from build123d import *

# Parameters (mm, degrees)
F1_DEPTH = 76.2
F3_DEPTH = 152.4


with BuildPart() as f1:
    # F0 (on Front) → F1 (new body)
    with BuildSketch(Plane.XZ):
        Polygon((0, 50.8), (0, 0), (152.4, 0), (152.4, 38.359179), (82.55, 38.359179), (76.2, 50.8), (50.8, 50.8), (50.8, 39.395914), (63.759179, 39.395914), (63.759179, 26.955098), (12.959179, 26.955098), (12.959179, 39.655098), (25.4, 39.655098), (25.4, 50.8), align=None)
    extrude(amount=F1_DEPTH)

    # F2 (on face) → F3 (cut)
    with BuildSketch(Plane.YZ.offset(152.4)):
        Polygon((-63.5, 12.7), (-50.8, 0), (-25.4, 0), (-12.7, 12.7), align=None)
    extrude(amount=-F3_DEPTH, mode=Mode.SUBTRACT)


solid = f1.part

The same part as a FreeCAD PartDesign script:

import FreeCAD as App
import Part
import Sketcher
Q = App.Units.Quantity

doc = App.newDocument("Part")
body = doc.addObject("PartDesign::Body", "Body")

# Sketch on XZ plane
sketch1 = body.newObject("Sketcher::SketchObject", "Sketch")
sketch1.AttachmentSupport = (doc.getObject("XZ_Plane"), [""])
sketch1.MapMode = "FlatFace"
sketch1.addGeometry([
    Part.LineSegment(App.Vector(0, 51, 0), App.Vector(0, 0, 0)),  # 0
    Part.LineSegment(App.Vector(0, 0, 0), App.Vector(152, 0, 0)),  # 1
    Part.LineSegment(App.Vector(152, 0, 0), App.Vector(152, 38, 0)),  # 2
    Part.LineSegment(App.Vector(152, 38, 0), App.Vector(83, 38, 0)),  # 3
    Part.LineSegment(App.Vector(83, 38, 0), App.Vector(76, 51, 0)),  # 4
    Part.LineSegment(App.Vector(76, 51, 0), App.Vector(51, 51, 0)),  # 5
    Part.LineSegment(App.Vector(51, 51, 0), App.Vector(51, 39, 0)),  # 6
    Part.LineSegment(App.Vector(51, 39, 0), App.Vector(64, 39, 0)),  # 7
    Part.LineSegment(App.Vector(64, 39, 0), App.Vector(64, 27, 0)),  # 8
    Part.LineSegment(App.Vector(64, 27, 0), App.Vector(13, 27, 0)),  # 9
    Part.LineSegment(App.Vector(13, 27, 0), App.Vector(13, 40, 0)),  # 10
    Part.LineSegment(App.Vector(13, 40, 0), App.Vector(25, 40, 0)),  # 11
    Part.LineSegment(App.Vector(25, 40, 0), App.Vector(25, 51, 0)),  # 12
    Part.LineSegment(App.Vector(25, 51, 0), App.Vector(0, 51, 0)),  # 13
], False)
sketch1.addConstraint([
    Sketcher.Constraint("Coincident", 0, 2, 1, 1),
    Sketcher.Constraint("Coincident", 1, 2, 2, 1),
    Sketcher.Constraint("Coincident", 2, 2, 3, 1),
    Sketcher.Constraint("Coincident", 3, 2, 4, 1),
    Sketcher.Constraint("Coincident", 4, 2, 5, 1),
    Sketcher.Constraint("Coincident", 5, 2, 6, 1),
    Sketcher.Constraint("Coincident", 6, 2, 7, 1),
    Sketcher.Constraint("Coincident", 7, 2, 8, 1),
    Sketcher.Constraint("Coincident", 8, 2, 9, 1),
    Sketcher.Constraint("Coincident", 9, 2, 10, 1),
    Sketcher.Constraint("Coincident", 10, 2, 11, 1),
    Sketcher.Constraint("Coincident", 11, 2, 12, 1),
    Sketcher.Constraint("Coincident", 12, 2, 13, 1),
    Sketcher.Constraint("Coincident", 13, 2, 0, 1),
    Sketcher.Constraint("Vertical", 0),
    Sketcher.Constraint("Horizontal", 1),
    Sketcher.Constraint("Vertical", 2),
    Sketcher.Constraint("Horizontal", 3),
    Sketcher.Constraint("Horizontal", 5),
    Sketcher.Constraint("Vertical", 6),
    Sketcher.Constraint("Horizontal", 7),
    Sketcher.Constraint("Vertical", 8),
    Sketcher.Constraint("Horizontal", 9),
    Sketcher.Constraint("Vertical", 10),
    Sketcher.Constraint("Horizontal", 11),
    Sketcher.Constraint("Vertical", 12),
    Sketcher.Constraint("Horizontal", 13),
    Sketcher.Constraint("Coincident", 0, 2, -1, 1),
    Sketcher.Constraint("Horizontal", 5, 2, 12, 2),
    Sketcher.Constraint("Equal", 5, 13),
    Sketcher.Constraint("Equal", 9, 0),
    Sketcher.Constraint("DistanceX", 1, 1, 1, 2, Q("6 in")),
    Sketcher.Constraint("DistanceX", 5, 2, 5, 1, Q("1 in")),
    Sketcher.Constraint("DistanceX", 9, 2, 9, 1, Q("2 in")),
    Sketcher.Constraint("DistanceY", 10, 1, 10, 2, Q("0.5 in")),
    Sketcher.Constraint("DistanceX", -1, 1, 4, 2, Q("3 in")),
    Sketcher.Constraint("DistanceX", 3, 2, 3, 1, Q("2.75 in")),
    Sketcher.Constraint("DistanceY", 12, 1, 12, 2, 11.144902),
    Sketcher.Constraint("DistanceX", 7, 1, 7, 2, 12.959179),
    Sketcher.Constraint("DistanceY", 2, 1, 2, 2, 38.359179),
    Sketcher.Constraint("DistanceY", 6, 2, 6, 1, 11.404086),
])
pad1 = body.newObject("PartDesign::Pad", "Pad")
pad1.Profile = sketch1
pad1.Length = Q("3 in")

# Sketch on YZ plane
sketch2 = body.newObject("Sketcher::SketchObject", "Sketch001")
sketch2.AttachmentSupport = (doc.getObject("YZ_Plane"), [""])
sketch2.MapMode = "FlatFace"
sketch2.AttachmentOffset = App.Placement(App.Vector(0, 0, 6 * 25.4), App.Rotation())
sketch2.addGeometry([
    Part.LineSegment(App.Vector(-64, 13, 0), App.Vector(-51, 0, 0)),
    Part.LineSegment(App.Vector(-51, 0, 0), App.Vector(-25, 0, 0)),
    Part.LineSegment(App.Vector(-25, 0, 0), App.Vector(-13, 13, 0)),
    Part.LineSegment(App.Vector(-13, 13, 0), App.Vector(-64, 13, 0)),
], False)
sketch2.addConstraint([
    Sketcher.Constraint("Coincident", 0, 2, 1, 1),
    Sketcher.Constraint("Coincident", 1, 2, 2, 1),
    Sketcher.Constraint("Coincident", 2, 2, 3, 1),
    Sketcher.Constraint("Coincident", 3, 2, 0, 1),
    Sketcher.Constraint("Horizontal", 1),
    Sketcher.Constraint("Horizontal", 3),
    Sketcher.Constraint("PointOnObject", 0, 2, -1),
    Sketcher.Constraint("Perpendicular", 0, 2),
    Sketcher.Constraint("Equal", 0, 2),
    Sketcher.Constraint("DistanceX", 1, 1, 1, 2, Q("1 in")),
    Sketcher.Constraint("DistanceX", 3, 2, 3, 1, Q("2 in")),
    Sketcher.Constraint("DistanceX", 0, 2, -1, 1, Q("2 in")),
])
pocket1 = body.newObject("PartDesign::Pocket", "Pocket")
pocket1.Profile = sketch2
pocket1.Length = Q("6 in")

doc.recompute()
